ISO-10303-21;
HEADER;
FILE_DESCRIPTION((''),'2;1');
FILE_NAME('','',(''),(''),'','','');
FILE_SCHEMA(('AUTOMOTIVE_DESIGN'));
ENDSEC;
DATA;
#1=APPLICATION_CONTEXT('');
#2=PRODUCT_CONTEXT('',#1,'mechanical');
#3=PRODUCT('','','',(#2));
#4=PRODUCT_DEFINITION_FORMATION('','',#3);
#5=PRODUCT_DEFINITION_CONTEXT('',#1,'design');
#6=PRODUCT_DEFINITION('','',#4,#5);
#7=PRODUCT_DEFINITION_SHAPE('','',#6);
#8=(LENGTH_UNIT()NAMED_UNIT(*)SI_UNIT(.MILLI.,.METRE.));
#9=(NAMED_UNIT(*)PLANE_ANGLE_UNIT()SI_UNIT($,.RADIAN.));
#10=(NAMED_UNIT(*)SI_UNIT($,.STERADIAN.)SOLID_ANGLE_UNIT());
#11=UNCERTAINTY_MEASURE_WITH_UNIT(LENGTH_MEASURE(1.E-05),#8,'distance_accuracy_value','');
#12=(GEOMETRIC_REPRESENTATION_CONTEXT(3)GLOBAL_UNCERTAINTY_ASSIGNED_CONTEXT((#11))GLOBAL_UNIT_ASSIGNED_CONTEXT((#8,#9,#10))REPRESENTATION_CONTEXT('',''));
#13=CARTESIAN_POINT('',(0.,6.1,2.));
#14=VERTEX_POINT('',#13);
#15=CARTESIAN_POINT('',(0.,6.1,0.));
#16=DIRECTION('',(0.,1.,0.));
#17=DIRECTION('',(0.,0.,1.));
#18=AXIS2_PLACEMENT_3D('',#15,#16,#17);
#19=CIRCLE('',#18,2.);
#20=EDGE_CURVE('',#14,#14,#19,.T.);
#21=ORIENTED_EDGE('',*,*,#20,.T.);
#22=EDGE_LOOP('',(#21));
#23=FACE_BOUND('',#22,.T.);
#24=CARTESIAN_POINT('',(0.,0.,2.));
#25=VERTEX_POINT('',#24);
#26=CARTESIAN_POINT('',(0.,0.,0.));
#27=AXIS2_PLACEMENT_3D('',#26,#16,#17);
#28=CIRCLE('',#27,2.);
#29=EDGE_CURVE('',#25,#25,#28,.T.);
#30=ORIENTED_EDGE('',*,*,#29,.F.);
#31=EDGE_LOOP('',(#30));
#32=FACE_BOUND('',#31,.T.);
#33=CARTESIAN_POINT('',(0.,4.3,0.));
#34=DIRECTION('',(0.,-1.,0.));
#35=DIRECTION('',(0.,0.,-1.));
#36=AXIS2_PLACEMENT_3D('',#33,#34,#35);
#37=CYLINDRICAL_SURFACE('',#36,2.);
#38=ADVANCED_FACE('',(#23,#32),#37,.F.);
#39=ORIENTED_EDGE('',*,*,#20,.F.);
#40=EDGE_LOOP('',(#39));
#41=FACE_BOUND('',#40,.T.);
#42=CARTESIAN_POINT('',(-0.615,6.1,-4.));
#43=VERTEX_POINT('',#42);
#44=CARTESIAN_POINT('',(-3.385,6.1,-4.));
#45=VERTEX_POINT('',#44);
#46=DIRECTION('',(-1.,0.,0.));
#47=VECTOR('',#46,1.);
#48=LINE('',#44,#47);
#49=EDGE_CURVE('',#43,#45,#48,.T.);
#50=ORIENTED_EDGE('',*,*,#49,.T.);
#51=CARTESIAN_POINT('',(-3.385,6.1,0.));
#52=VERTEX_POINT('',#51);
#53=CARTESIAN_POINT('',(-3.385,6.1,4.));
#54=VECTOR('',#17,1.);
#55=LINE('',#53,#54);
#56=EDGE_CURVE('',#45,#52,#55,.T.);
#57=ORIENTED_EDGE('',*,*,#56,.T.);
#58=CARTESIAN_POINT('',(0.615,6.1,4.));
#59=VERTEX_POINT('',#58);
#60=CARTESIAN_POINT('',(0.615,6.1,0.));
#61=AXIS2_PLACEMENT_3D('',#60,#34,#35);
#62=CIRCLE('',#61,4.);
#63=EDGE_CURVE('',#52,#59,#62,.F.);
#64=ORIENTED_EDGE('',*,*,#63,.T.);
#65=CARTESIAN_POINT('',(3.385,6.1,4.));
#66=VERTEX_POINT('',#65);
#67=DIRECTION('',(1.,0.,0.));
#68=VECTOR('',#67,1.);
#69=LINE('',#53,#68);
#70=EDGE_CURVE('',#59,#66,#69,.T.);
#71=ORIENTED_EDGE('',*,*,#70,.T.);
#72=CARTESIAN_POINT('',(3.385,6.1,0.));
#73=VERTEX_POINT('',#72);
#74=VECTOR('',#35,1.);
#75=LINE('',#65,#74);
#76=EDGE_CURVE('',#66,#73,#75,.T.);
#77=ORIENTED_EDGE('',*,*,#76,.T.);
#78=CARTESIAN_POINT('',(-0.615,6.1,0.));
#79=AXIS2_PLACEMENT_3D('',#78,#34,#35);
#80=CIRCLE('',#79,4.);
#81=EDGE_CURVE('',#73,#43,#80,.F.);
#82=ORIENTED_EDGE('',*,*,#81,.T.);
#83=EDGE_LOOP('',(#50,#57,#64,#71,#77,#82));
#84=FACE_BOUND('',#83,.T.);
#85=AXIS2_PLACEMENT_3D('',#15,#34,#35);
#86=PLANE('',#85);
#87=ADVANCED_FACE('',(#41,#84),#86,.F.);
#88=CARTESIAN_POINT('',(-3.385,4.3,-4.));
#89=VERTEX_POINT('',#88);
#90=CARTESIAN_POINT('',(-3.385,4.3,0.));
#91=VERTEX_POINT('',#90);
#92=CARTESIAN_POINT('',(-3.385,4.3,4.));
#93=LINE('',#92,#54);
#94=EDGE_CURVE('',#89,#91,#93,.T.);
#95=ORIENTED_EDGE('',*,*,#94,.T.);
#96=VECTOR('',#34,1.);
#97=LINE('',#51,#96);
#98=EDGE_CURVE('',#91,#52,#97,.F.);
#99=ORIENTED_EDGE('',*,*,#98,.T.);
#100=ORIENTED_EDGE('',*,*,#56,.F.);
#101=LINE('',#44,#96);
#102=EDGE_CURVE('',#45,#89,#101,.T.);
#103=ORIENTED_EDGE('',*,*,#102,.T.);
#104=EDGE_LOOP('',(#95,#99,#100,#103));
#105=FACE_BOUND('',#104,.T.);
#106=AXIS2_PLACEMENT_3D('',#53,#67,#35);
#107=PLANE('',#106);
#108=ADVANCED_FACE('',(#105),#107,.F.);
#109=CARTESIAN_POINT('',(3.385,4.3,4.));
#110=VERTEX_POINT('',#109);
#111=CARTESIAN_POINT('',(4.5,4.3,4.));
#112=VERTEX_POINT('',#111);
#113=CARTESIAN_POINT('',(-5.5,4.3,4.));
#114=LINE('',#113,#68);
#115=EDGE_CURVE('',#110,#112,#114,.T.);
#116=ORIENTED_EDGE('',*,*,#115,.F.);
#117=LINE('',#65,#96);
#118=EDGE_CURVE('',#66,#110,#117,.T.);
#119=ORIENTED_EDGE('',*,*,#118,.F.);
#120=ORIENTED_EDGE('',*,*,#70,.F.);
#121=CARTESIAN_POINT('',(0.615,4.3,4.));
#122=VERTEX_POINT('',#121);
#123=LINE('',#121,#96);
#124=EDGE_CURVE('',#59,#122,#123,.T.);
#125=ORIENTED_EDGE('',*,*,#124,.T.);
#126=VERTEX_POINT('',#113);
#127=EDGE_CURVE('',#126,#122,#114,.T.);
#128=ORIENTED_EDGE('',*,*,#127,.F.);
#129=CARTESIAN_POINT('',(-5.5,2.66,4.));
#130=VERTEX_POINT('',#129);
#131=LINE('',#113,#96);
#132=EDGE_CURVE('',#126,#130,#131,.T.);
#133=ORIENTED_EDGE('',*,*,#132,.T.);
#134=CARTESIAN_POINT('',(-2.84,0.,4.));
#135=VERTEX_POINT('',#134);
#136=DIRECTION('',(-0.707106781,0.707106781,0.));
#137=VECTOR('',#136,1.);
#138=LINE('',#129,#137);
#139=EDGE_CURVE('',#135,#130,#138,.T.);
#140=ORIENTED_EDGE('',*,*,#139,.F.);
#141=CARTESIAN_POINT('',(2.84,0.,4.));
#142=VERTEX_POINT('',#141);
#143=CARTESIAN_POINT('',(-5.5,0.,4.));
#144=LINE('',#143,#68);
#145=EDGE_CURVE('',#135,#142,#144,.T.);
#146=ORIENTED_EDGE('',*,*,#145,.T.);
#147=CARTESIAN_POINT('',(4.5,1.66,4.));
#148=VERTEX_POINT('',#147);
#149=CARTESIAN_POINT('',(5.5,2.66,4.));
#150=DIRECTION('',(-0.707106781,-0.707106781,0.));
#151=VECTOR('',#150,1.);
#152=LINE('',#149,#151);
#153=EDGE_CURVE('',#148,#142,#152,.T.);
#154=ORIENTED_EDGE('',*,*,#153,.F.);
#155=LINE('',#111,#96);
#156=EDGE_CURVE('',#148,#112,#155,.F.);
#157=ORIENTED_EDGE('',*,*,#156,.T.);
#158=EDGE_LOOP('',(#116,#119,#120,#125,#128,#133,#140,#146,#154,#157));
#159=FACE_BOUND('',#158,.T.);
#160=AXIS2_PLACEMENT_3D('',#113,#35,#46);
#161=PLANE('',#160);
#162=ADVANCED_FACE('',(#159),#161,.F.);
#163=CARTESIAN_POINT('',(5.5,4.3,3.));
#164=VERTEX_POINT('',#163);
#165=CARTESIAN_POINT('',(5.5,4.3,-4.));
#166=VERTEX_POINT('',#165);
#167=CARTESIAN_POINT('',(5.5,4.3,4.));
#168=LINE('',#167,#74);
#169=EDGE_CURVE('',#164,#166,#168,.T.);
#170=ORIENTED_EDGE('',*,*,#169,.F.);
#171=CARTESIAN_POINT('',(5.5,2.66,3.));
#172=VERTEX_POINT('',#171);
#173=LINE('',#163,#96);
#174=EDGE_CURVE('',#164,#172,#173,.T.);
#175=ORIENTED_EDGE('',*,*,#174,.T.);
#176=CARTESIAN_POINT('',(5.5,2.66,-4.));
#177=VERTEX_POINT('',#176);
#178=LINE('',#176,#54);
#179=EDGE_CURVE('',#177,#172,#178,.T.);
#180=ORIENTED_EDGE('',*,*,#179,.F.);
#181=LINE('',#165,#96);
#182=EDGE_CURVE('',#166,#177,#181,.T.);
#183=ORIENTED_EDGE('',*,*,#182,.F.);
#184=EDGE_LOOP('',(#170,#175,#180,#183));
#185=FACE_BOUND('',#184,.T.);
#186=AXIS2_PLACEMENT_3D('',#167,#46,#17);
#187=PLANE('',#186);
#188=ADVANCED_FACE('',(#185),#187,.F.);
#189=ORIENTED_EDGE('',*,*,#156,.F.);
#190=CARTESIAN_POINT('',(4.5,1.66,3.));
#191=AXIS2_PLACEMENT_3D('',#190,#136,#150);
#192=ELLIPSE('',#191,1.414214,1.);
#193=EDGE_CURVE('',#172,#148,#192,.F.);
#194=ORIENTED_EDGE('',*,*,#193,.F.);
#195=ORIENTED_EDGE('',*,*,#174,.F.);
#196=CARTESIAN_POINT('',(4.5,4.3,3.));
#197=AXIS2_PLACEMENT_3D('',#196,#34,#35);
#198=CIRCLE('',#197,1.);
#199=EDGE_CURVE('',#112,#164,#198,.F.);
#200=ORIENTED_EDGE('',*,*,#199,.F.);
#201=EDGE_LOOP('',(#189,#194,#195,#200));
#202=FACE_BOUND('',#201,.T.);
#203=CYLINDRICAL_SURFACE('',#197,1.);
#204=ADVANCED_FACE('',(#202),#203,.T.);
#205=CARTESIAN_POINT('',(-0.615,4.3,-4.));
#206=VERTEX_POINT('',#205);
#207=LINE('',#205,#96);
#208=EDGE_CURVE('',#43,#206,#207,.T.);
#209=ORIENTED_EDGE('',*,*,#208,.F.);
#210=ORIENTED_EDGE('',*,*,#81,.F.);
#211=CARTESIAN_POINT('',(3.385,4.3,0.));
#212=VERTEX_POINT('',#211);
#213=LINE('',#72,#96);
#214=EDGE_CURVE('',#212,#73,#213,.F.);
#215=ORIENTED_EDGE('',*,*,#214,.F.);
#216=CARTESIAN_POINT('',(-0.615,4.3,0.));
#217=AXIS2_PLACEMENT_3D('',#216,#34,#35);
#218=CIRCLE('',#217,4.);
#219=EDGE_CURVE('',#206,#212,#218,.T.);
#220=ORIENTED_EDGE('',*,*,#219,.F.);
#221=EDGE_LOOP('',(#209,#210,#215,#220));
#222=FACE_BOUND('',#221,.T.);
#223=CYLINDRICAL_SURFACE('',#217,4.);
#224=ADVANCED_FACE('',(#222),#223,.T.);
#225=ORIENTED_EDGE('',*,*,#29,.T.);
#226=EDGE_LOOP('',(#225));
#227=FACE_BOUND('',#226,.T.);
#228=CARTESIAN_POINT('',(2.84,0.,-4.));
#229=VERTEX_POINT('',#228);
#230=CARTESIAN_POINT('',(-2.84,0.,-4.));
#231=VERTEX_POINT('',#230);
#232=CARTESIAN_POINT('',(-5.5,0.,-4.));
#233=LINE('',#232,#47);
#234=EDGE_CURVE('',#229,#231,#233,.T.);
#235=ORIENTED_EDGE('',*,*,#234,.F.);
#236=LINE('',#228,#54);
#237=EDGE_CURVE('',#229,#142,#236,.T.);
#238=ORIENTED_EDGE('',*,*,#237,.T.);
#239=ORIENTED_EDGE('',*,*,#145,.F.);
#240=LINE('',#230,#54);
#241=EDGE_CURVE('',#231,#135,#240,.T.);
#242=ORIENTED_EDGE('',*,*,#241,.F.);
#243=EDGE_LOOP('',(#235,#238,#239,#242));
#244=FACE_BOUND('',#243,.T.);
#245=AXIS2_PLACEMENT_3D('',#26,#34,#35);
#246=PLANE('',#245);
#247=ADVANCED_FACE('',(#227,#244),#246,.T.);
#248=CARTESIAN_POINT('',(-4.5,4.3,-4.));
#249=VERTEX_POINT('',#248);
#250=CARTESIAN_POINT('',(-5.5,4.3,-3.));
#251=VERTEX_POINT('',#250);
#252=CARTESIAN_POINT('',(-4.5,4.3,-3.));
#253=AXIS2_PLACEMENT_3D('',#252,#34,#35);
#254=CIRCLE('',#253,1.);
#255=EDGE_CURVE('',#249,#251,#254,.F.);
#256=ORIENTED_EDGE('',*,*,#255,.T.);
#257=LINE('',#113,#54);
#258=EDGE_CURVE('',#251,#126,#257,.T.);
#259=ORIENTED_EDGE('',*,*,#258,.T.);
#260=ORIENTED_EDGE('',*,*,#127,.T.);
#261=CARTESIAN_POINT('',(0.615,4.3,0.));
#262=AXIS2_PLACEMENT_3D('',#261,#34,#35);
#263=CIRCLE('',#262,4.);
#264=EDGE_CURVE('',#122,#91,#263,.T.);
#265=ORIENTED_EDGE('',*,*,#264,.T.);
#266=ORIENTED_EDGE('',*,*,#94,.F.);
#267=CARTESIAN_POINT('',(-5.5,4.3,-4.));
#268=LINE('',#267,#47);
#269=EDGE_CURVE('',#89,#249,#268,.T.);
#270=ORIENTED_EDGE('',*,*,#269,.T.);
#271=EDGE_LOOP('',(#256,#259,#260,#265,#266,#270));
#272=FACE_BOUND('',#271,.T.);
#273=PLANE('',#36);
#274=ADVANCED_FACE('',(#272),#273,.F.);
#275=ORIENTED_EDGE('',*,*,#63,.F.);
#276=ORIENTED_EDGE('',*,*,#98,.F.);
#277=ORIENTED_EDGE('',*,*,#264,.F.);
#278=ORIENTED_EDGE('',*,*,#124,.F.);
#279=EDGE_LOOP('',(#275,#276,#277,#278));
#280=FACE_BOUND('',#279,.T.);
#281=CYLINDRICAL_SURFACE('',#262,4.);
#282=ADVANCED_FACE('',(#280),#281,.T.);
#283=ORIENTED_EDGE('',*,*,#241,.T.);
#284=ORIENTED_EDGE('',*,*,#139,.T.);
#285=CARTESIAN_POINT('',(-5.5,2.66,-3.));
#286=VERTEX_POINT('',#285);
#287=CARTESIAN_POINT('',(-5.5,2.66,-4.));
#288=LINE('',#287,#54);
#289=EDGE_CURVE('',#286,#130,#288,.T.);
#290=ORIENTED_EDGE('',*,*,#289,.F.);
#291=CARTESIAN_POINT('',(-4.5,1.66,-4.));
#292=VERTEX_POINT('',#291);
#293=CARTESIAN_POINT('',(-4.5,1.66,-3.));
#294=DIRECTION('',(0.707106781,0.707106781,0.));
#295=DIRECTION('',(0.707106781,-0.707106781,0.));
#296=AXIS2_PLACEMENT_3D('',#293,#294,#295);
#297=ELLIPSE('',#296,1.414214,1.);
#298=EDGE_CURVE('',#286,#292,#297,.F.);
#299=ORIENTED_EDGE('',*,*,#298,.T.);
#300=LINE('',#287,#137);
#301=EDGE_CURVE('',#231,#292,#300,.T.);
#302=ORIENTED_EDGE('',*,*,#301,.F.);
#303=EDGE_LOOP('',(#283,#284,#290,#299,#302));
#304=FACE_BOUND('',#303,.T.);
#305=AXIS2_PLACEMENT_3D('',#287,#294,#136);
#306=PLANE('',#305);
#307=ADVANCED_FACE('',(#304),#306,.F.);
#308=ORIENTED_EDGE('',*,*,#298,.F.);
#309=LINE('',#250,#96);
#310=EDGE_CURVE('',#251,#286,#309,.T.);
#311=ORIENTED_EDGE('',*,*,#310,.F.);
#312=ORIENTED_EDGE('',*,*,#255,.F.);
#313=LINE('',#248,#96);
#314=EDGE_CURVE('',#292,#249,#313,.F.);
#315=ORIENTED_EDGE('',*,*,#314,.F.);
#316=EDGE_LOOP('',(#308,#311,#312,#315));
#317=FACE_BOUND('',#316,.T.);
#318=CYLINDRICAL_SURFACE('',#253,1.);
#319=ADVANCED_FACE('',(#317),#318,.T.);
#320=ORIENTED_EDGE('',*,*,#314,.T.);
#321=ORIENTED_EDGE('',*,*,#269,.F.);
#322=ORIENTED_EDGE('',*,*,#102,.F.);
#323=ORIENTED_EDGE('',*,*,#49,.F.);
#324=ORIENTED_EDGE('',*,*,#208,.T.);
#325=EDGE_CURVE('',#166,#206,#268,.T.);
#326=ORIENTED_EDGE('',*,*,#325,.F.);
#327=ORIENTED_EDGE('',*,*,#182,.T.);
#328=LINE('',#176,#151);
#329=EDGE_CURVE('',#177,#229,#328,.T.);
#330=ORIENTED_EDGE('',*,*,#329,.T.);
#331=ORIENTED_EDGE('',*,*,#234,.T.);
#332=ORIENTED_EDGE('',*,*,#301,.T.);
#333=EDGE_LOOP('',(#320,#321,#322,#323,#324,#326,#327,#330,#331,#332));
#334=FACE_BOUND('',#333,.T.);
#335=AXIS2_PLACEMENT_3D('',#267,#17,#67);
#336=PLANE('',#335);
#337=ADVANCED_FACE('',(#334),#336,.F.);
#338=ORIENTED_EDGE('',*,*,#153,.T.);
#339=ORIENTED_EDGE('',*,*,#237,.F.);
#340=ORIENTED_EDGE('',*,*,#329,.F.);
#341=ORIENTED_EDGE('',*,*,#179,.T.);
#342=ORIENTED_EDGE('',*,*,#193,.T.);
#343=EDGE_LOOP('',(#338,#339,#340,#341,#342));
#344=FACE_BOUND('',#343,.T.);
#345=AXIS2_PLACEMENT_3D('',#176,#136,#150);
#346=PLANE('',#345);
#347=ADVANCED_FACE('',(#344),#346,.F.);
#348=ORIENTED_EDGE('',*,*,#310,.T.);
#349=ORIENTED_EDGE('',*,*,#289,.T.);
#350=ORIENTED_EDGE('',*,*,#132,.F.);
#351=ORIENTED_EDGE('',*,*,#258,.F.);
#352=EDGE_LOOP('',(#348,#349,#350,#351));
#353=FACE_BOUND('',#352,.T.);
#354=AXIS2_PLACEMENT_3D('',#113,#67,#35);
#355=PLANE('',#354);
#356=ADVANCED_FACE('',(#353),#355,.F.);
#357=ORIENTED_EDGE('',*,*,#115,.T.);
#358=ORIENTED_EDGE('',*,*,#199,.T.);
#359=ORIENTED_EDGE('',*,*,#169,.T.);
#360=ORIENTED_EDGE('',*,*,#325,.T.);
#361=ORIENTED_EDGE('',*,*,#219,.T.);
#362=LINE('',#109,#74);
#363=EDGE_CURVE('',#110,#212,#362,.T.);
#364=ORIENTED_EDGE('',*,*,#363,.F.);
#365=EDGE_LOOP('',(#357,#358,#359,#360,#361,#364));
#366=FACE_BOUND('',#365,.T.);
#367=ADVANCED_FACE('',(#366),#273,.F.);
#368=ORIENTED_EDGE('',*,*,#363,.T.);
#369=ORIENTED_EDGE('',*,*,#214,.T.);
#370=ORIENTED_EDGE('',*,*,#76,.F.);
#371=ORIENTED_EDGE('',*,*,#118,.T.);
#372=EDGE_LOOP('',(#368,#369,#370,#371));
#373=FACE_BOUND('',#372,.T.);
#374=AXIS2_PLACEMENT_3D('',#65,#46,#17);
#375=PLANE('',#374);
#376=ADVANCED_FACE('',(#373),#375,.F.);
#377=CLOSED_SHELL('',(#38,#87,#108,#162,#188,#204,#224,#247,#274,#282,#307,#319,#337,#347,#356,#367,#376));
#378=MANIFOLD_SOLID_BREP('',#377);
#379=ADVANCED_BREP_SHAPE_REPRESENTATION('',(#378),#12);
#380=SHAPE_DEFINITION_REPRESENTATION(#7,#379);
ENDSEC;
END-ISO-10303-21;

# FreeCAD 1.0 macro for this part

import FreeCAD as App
import Part
import Sketcher
from FreeCAD import Vector


def edges_at(feature, points):
    """Names of the edges that pass closest to the given points."""
    edges = feature.Shape.Edges
    near = lambda p: min(range(len(edges)), key=lambda i: edges[i].distToShape(Part.Vertex(*p))[0])
    return sorted({f"Edge{near(p) + 1}" for p in points})

doc = App.newDocument("Part")
body = doc.addObject("PartDesign::Body", "Body")

sketch1 = body.newObject("Sketcher::SketchObject", "Sketch")
sketch1.AttachmentSupport = (doc.getObject("XZ_Plane"), [""])
sketch1.MapMode = "FlatFace"
sketch1.addGeometry(Part.LineSegment(Vector(-5.5, -4, 0), Vector(-5.5, 4, 0)), False)
sketch1.addGeometry(Part.LineSegment(Vector(-5.5, 4, 0), Vector(5.5, 4, 0)), False)
sketch1.addGeometry(Part.LineSegment(Vector(5.5, 4, 0), Vector(5.5, -4, 0)), False)
sketch1.addGeometry(Part.LineSegment(Vector(5.5, -4, 0), Vector(-5.5, -4, 0)), False)
sketch1.addGeometry(Part.Circle(Vector(0, 0, 0), Vector(0, 0, 1), 2), False)
sketch1.addConstraint(Sketcher.Constraint("Coincident", 0, 2, 1, 1))
sketch1.addConstraint(Sketcher.Constraint("Coincident", 1, 2, 2, 1))
sketch1.addConstraint(Sketcher.Constraint("Coincident", 2, 2, 3, 1))
sketch1.addConstraint(Sketcher.Constraint("Coincident", 3, 2, 0, 1))
sketch1.addConstraint(Sketcher.Constraint("Vertical", 0))
sketch1.addConstraint(Sketcher.Constraint("Horizontal", 1))
sketch1.addConstraint(Sketcher.Constraint("Vertical", 2))
sketch1.addConstraint(Sketcher.Constraint("Horizontal", 3))
sketch1.addConstraint(Sketcher.Constraint("Coincident", 4, 3, -1, 1))
sketch1.addConstraint(Sketcher.Constraint("Symmetric", 0, 2, 2, 2, -1, 1))
sketch1.addConstraint(Sketcher.Constraint("Diameter", 4, 4.0))
sketch1.addConstraint(Sketcher.Constraint("DistanceX", 1, 1, 1, 2, 11.0))
sketch1.addConstraint(Sketcher.Constraint("DistanceY", 0, 1, 0, 2, 8.0))
pad1 = body.newObject("PartDesign::Pad", "Pad")
pad1.Profile = sketch1
pad1.Length = 4.3
pad1.Reversed = True

sketch2 = body.newObject("Sketcher::SketchObject", "Sketch001")
sketch2.AttachmentSupport = (doc.getObject("XY_Plane"), [""])
sketch2.MapMode = "FlatFace"
sketch2.AttachmentOffset = App.Placement(Vector(0, 0, 4), App.Rotation())
sketch2.addGeometry(Part.LineSegment(Vector(-2.8, 0, 0), Vector(-5.5, 2.7, 0)), False)
sketch2.addGeometry(Part.LineSegment(Vector(-5.5, 2.7, 0), Vector(-5.5, 0, 0)), False)
sketch2.addGeometry(Part.LineSegment(Vector(-5.5, 0, 0), Vector(-2.8, 0, 0)), False)
sketch2.addGeometry(Part.LineSegment(Vector(5.5, 0, 0), Vector(5.5, 2.7, 0)), False)
sketch2.addGeometry(Part.LineSegment(Vector(5.5, 2.7, 0), Vector(2.8, 0, 0)), False)
sketch2.addGeometry(Part.LineSegment(Vector(2.8, 0, 0), Vector(5.5, 0, 0)), False)
sketch2.addConstraint(Sketcher.Constraint("Coincident", 0, 2, 1, 1))
sketch2.addConstraint(Sketcher.Constraint("Coincident", 1, 2, 2, 1))
sketch2.addConstraint(Sketcher.Constraint("Coincident", 2, 2, 0, 1))
sketch2.addConstraint(Sketcher.Constraint("Coincident", 3, 2, 4, 1))
sketch2.addConstraint(Sketcher.Constraint("Coincident", 4, 2, 5, 1))
sketch2.addConstraint(Sketcher.Constraint("Coincident", 5, 2, 3, 1))
sketch2.addConstraint(Sketcher.Constraint("Vertical", 1))
sketch2.addConstraint(Sketcher.Constraint("Horizontal", 2))
sketch2.addConstraint(Sketcher.Constraint("Vertical", 3))
sketch2.addConstraint(Sketcher.Constraint("Horizontal", 5))
sketch2.addConstraint(Sketcher.Constraint("Symmetric", 2, 2, 4, 2, -1, 1))
sketch2.addConstraint(Sketcher.Constraint("Symmetric", 0, 2, 3, 2, -2))
sketch2.addConstraint(Sketcher.Constraint("PointOnObject", 1, 2, -1))
sketch2.addConstraint(Sketcher.Constraint("Perpendicular", 0, 4))
sketch2.addConstraint(Sketcher.Constraint("DistanceX", 0, 2, 3, 2, 11.0))
sketch2.addConstraint(Sketcher.Constraint("DistanceX", 2, 1, 2, 2, 2.66))
pocket1 = body.newObject("PartDesign::Pocket", "Pocket")
pocket1.Profile = sketch2
pocket1.Type = "ThroughAll"

sketch3 = body.newObject("Sketcher::SketchObject", "Sketch002")
sketch3.AttachmentSupport = (doc.getObject("XZ_Plane"), [""])
sketch3.MapMode = "FlatFace"
sketch3.AttachmentOffset = App.Placement(Vector(0, 0, -4.3), App.Rotation())
sketch3.addGeometry(Part.LineSegment(Vector(-3.4, -4, 0), Vector(-3.4, 4, 0)), False)
sketch3.addGeometry(Part.LineSegment(Vector(-3.4, 4, 0), Vector(3.4, 4, 0)), False)
sketch3.addGeometry(Part.LineSegment(Vector(3.4, 4, 0), Vector(3.4, -4, 0)), False)
sketch3.addGeometry(Part.LineSegment(Vector(3.4, -4, 0), Vector(-3.4, -4, 0)), False)
sketch3.addGeometry(Part.Circle(Vector(0, 0, 0), Vector(0, 0, 1), 2), False)
sketch3.addConstraint(Sketcher.Constraint("Coincident", 0, 2, 1, 1))
sketch3.addConstraint(Sketcher.Constraint("Coincident", 1, 2, 2, 1))
sketch3.addConstraint(Sketcher.Constraint("Coincident", 2, 2, 3, 1))
sketch3.addConstraint(Sketcher.Constraint("Coincident", 3, 2, 0, 1))
sketch3.addConstraint(Sketcher.Constraint("Vertical", 0))
sketch3.addConstraint(Sketcher.Constraint("Horizontal", 1))
sketch3.addConstraint(Sketcher.Constraint("Vertical", 2))
sketch3.addConstraint(Sketcher.Constraint("Horizontal", 3))
sketch3.addConstraint(Sketcher.Constraint("Coincident", 4, 3, -1, 1))
sketch3.addConstraint(Sketcher.Constraint("Symmetric", 0, 2, 2, 2, -1, 1))
sketch3.addConstraint(Sketcher.Constraint("Diameter", 4, 4.0))
sketch3.addConstraint(Sketcher.Constraint("DistanceY", 0, 1, 0, 2, 8.0))
sketch3.addConstraint(Sketcher.Constraint("DistanceX", 1, 1, 1, 2, 6.77))
pad2 = body.newObject("PartDesign::Pad", "Pad001")
pad2.Profile = sketch3
pad2.Length = 1.8
pad2.Reversed = True
doc.recompute()

fillet = body.newObject("PartDesign::Fillet", "Fillet")
fillet.Base = (pad2, edges_at(pad2, [(3.385, 5.2, -4), (-3.385, 5.2, 4)]))
fillet.Radius = 4
doc.recompute()

fillet2 = body.newObject("PartDesign::Fillet", "Fillet001")
fillet2.Base = (fillet, edges_at(fillet, [(5.5, 3.48, 4), (-5.5, 3.48, -4)]))
fillet2.Radius = 1

doc.recompute()
